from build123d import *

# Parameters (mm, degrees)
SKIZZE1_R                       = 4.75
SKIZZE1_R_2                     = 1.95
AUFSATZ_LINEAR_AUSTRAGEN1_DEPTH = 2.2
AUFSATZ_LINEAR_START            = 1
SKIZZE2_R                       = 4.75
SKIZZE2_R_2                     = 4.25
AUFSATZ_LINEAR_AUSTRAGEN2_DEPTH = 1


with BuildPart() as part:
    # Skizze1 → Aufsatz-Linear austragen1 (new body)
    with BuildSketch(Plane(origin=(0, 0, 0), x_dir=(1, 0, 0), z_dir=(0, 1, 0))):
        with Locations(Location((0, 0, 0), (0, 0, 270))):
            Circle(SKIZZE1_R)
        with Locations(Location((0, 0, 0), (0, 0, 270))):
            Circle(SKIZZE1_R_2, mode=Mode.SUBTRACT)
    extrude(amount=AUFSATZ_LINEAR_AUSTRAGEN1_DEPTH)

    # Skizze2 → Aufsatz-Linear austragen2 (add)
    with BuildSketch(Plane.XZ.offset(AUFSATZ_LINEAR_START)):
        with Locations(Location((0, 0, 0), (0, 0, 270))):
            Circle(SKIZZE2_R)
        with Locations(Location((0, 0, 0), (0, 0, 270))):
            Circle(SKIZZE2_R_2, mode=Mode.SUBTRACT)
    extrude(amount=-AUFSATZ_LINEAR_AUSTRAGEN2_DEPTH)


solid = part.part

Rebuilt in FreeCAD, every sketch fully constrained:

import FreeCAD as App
import Part
import Sketcher
Q = App.Units.Quantity

doc = App.newDocument("Part")
body = doc.addObject("PartDesign::Body", "Body")

# Sketch on XZ plane
sketch1 = body.newObject("Sketcher::SketchObject", "Sketch")
sketch1.AttachmentSupport = (doc.getObject("XZ_Plane"), [""])
sketch1.MapMode = "FlatFace"
sketch1.addGeometry([
    Part.Circle(App.Vector(0, 0, 0), App.Vector(0, 0, 1), 4.8),
    Part.Circle(App.Vector(0, 0, 0), App.Vector(0, 0, 1), 1.9),
], False)
sketch1.addConstraint([
    Sketcher.Constraint("Coincident", 0, 3, -1, 1),
    Sketcher.Constraint("Coincident", 1, 3, -1, 1),
    Sketcher.Constraint("Diameter", 0, Q("9.5 mm")),
    Sketcher.Constraint("Diameter", 1, Q("3.9 mm")),
])
pad1 = body.newObject("PartDesign::Pad", "Pad")
pad1.Profile = sketch1
pad1.Length = 2.2
pad1.Reversed = True

# Sketch on XZ plane
sketch2 = body.newObject("Sketcher::SketchObject", "Sketch001")
sketch2.AttachmentSupport = (doc.getObject("XZ_Plane"), [""])
sketch2.MapMode = "FlatFace"
sketch2.AttachmentOffset = App.Placement(App.Vector(0, 0, 1), App.Rotation())
sketch2.addGeometry([
    Part.Circle(App.Vector(0, 0, 0), App.Vector(0, 0, 1), 4.8),
    Part.Circle(App.Vector(0, 0, 0), App.Vector(0, 0, 1), 4.2),
], False)
sketch2.addConstraint([
    Sketcher.Constraint("Coincident", 0, 3, -1, 1),
    Sketcher.Constraint("Coincident", 1, 3, -1, 1),
    Sketcher.Constraint("Diameter", 0, Q("9.5 mm")),
    Sketcher.Constraint("Diameter", 1, Q("8.5 mm")),
])
pad2 = body.newObject("PartDesign::Pad", "Pad001")
pad2.Profile = sketch2
pad2.Length = 1
pad2.Reversed = True

doc.recompute()
